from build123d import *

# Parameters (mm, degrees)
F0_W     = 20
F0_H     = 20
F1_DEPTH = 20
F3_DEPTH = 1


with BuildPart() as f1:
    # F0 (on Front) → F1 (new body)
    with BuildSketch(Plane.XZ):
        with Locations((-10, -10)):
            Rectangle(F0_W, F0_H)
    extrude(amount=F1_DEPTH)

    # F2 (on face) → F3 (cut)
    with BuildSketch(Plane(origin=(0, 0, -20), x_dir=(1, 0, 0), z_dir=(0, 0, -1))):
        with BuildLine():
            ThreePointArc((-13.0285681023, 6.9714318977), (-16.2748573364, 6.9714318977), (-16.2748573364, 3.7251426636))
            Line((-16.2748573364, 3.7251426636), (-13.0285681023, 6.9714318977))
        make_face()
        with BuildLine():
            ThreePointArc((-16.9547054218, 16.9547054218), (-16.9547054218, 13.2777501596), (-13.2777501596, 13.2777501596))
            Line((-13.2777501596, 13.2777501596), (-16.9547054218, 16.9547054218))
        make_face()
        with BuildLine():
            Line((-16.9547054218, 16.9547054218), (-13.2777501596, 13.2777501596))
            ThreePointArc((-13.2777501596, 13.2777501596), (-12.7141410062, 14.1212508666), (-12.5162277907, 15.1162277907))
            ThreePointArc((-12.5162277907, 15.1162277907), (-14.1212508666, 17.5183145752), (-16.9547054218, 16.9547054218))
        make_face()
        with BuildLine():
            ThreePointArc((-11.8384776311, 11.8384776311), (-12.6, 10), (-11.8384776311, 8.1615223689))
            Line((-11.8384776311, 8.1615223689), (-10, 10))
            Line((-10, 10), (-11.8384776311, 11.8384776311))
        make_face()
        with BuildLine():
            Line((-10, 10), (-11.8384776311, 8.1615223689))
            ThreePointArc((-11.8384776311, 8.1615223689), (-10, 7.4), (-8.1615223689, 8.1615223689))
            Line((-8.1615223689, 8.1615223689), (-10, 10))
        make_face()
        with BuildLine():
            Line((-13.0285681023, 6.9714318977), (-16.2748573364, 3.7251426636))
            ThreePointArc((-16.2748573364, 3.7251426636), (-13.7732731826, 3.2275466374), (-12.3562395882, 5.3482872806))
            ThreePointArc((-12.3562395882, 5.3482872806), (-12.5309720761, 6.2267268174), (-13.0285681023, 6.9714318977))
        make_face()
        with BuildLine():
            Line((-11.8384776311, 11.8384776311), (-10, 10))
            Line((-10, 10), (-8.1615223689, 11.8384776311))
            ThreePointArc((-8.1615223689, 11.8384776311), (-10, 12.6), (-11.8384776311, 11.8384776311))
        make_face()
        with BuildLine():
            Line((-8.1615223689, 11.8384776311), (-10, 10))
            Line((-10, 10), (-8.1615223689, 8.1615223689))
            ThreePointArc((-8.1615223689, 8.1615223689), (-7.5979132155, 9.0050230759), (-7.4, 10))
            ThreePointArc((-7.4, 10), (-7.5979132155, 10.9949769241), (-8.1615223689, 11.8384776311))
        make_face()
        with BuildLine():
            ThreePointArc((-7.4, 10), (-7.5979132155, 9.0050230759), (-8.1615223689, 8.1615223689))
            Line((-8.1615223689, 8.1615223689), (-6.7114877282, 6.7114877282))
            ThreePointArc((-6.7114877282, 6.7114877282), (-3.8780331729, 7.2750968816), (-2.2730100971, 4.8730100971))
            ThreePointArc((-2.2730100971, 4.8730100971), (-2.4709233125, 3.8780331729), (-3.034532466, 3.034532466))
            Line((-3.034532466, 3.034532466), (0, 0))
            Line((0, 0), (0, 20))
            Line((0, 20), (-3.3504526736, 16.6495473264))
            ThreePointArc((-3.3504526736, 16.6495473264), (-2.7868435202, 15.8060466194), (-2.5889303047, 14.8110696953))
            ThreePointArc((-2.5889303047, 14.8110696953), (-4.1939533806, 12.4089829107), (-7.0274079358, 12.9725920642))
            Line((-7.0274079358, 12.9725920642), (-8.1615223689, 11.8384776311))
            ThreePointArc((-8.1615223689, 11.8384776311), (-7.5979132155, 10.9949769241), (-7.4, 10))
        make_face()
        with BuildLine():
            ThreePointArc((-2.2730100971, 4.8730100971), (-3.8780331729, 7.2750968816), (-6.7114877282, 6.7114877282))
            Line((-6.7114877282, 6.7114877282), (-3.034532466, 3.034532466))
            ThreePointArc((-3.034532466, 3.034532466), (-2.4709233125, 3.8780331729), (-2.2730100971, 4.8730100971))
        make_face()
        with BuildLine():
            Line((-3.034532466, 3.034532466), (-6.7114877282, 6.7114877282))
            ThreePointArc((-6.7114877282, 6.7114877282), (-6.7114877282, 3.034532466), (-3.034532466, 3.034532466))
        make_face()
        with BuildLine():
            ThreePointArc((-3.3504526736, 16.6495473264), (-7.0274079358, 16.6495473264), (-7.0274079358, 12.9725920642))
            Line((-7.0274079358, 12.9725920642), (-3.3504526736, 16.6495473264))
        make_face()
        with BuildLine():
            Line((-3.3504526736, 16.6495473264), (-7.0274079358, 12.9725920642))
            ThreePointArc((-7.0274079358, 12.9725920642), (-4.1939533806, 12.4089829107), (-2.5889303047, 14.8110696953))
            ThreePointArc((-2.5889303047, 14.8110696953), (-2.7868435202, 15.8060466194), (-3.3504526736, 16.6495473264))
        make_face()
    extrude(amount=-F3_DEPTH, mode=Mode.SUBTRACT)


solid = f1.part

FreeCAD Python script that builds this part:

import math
import FreeCAD as App
import Part
import Sketcher

V = App.Vector
Q = App.Units.Quantity


def add_polygon(sketch, points):
    """Adds a closed chain of lines whose ends are joined by coincident constraints."""
    first, n = sketch.GeometryCount, len(points)
    for a, b in zip(points, points[1:] + points[:1]):
        sketch.addGeometry(Part.LineSegment(App.Vector(*a, 0), App.Vector(*b, 0)), False)
    for i in range(n):
        sketch.addConstraint(Sketcher.Constraint("Coincident", first + i, 2, first + (i + 1) % n, 1))

doc = App.newDocument("Part")
body = doc.addObject("PartDesign::Body", "Body")

sketch1 = doc.addObject("Sketcher::SketchObject", "Sketch")
body.addObject(sketch1)
sketch1.AttachmentSupport = (doc.XZ_Plane, [""])
sketch1.MapMode = "FlatFace"
add_polygon(sketch1, [(-20, 0), (-20, -20), (0, -20), (0, 0)])
sketch1.addConstraint([
    Sketcher.Constraint("Vertical", 0),
    Sketcher.Constraint("Horizontal", 1),
    Sketcher.Constraint("Vertical", 2),
    Sketcher.Constraint("Horizontal", 3),
    Sketcher.Constraint("Coincident", 2, 2, -1, 1),
    Sketcher.Constraint("Equal", 3, 0),
    Sketcher.Constraint("DistanceX", 1, 1, 1, 2, 20.0),
])
pad1 = doc.addObject("PartDesign::Pad", "Pad")
body.addObject(pad1)
pad1.Profile = sketch1
pad1.Length = 20

sketch2 = doc.addObject("Sketcher::SketchObject", "Sketch001")
body.addObject(sketch2)
sketch2.AttachmentSupport = (doc.XY_Plane, [""])
sketch2.MapMode = "FlatFace"
sketch2.AttachmentOffset = App.Placement(V(0, 0, -20), App.Rotation())
sketch2.addGeometry([
    Part.ArcOfCircle(Part.Circle(V(-14.7, -5.3, 0), V(0, 0, 1), 2.3), math.radians(135), math.radians(315)),
    Part.ArcOfCircle(Part.Circle(V(-14.7, -5.3, 0), V(0, 0, 1), 2.3), math.radians(0), math.radians(135)),
    Part.ArcOfCircle(Part.Circle(V(-14.7, -5.3, 0), V(0, 0, 1), 2.3), math.radians(-45), math.radians(0)),
    Part.ArcOfCircle(Part.Circle(V(-15.1, -15.1, 0), V(0, 0, 1), 2.6), math.radians(45), math.radians(225)),
    Part.ArcOfCircle(Part.Circle(V(-15.1, -15.1, 0), V(0, 0, 1), 2.6), math.radians(0), math.radians(45)),
    Part.ArcOfCircle(Part.Circle(V(-15.1, -15.1, 0), V(0, 0, 1), 2.6), math.radians(-135), math.radians(0)),
    Part.ArcOfCircle(Part.Circle(V(-10, -10, 0), V(0, 0, 1), 2.6), math.radians(135), math.radians(225)),
    Part.ArcOfCircle(Part.Circle(V(-10, -10, 0), V(0, 0, 1), 2.6), math.radians(45), math.radians(135)),
    Part.LineSegment(V(-8.2, -8.2, 0), V(-6.7, -6.7, 0)),
    Part.ArcOfCircle(Part.Circle(V(-4.9, -4.9, 0), V(0, 0, 1), 2.6), math.radians(45), math.radians(225)),
    Part.LineSegment(V(-3, -3, 0), V(0, 0, 0)),
    Part.LineSegment(V(0, 0, 0), V(0, -20, 0)),
    Part.LineSegment(V(0, -20, 0), V(-3.4, -16.6, 0)),
    Part.ArcOfCircle(Part.Circle(V(-5.2, -14.8, 0), V(0, 0, 1), 2.6), math.radians(135), math.radians(315)),
    Part.LineSegment(V(-7, -13, 0), V(-8.2, -11.8, 0)),
    Part.ArcOfCircle(Part.Circle(V(-10, -10, 0), V(0, 0, 1), 2.6), math.radians(-135), math.radians(-45)),
], False)
sketch2.addConstraint([
    Sketcher.Constraint("Tangent", 0, 1, 1, 2),
    Sketcher.Constraint("Tangent", 1, 1, 2, 2),
    Sketcher.Constraint("Tangent", 2, 1, 0, 2),
    Sketcher.Constraint("Tangent", 3, 1, 4, 2),
    Sketcher.Constraint("Tangent", 4, 1, 5, 2),
    Sketcher.Constraint("Tangent", 5, 1, 3, 2),
    Sketcher.Constraint("Tangent", 6, 1, 7, 2),
    Sketcher.Constraint("Coincident", 7, 1, 8, 1),
    Sketcher.Constraint("Coincident", 8, 2, 9, 2),
    Sketcher.Constraint("Coincident", 9, 1, 10, 1),
    Sketcher.Constraint("Coincident", 10, 2, 11, 1),
    Sketcher.Constraint("Coincident", 11, 2, 12, 1),
    Sketcher.Constraint("Coincident", 12, 2, 13, 2),
    Sketcher.Constraint("Coincident", 13, 1, 14, 1),
    Sketcher.Constraint("Coincident", 14, 2, 15, 2),
    Sketcher.Constraint("Tangent", 15, 1, 6, 2),
    Sketcher.Constraint("Vertical", 11),
    Sketcher.Constraint("Coincident", 10, 2, -1, 1),
    Sketcher.Constraint("Equal", 5, 6),
    Sketcher.Constraint("Equal", 6, 7),
    Sketcher.Constraint("Equal", 7, 9),
    Sketcher.Constraint("Equal", 9, 13),
    Sketcher.Constraint("Equal", 13, 15),
    Sketcher.Constraint("Parallel", 8, 10),
    Sketcher.Constraint("Perpendicular", 10, 12),
    Sketcher.Constraint("Parallel", 12, 14),
    Sketcher.Constraint("Horizontal", 2, 3, 1, 1),
    Sketcher.Constraint("Horizontal", 5, 3, 4, 1),
    Sketcher.Constraint("Horizontal", 6, 1, 7, 1),
    Sketcher.Constraint("Horizontal", 14, 2, 15, 1),
    Sketcher.Constraint("Vertical", 7, 1, 14, 2),
    Sketcher.Constraint("Radius", 3, 2.6),
    Sketcher.Constraint("DistanceY", 11, 2, 11, 1, 20.0),
    Sketcher.Constraint("Angle", 8, Q("45 deg")),
    Sketcher.Constraint("DistanceX", 6, 3, -1, 1, 10.0),
    Sketcher.Constraint("DistanceY", 6, 3, -1, 1, 10.0),
    Sketcher.Constraint("Radius", 0, 2.295473),
    Sketcher.Constraint("Distance", 8, 2.050659),
    Sketcher.Constraint("Distance", 14, 1.60388),
    Sketcher.Constraint("DistanceX", 9, 3, -1, 1, 4.87301),
    Sketcher.Constraint("DistanceX", 13, 3, -1, 1, 5.18893),
    Sketcher.Constraint("DistanceX", 1, 1, -1, 1, 12.35624),
    Sketcher.Constraint("DistanceX", 2, 1, -1, 1, 13.028568),
    Sketcher.Constraint("DistanceY", 2, 1, -1, 1, 6.971432),
    Sketcher.Constraint("DistanceX", 3, 1, -1, 1, 13.27775),
    Sketcher.Constraint("DistanceY", 3, 1, -1, 1, 13.27775),
    Sketcher.Constraint("DistanceY", 3, 3, 0, 3, 9.767941),
    Sketcher.Constraint("DistanceX", 2, 1, 6, 1, 1.19009),
    Sketcher.Constraint("DistanceX", 0, 1, -1, 1, 16.274857),
    Sketcher.Constraint("DistanceX", 5, 1, -1, 1, 16.954705),
])
pocket1 = doc.addObject("PartDesign::Pocket", "Pocket")
body.addObject(pocket1)
pocket1.Profile = sketch2
pocket1.Length = 1
pocket1.Reversed = True

doc.recompute()
